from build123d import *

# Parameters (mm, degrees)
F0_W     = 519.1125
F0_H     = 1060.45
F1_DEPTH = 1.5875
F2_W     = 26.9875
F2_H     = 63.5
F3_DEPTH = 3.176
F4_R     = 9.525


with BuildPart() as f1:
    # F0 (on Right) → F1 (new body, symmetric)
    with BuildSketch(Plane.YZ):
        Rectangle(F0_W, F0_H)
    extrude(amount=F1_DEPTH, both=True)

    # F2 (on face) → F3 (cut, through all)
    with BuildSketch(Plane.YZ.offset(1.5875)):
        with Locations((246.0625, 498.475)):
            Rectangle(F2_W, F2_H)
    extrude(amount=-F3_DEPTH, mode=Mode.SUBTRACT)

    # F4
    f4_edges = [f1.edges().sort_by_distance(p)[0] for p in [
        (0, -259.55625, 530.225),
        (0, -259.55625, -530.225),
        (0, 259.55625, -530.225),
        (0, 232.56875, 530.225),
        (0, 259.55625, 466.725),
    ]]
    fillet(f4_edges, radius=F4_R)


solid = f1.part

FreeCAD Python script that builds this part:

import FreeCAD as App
import Part
import Sketcher

V = App.Vector
Q = App.Units.Quantity


def edges_at(feature, points):
    """Names of the edges that pass closest to the given points."""
    edges = feature.Shape.Edges
    near = lambda p: min(range(len(edges)), key=lambda i: edges[i].distToShape(Part.Vertex(*p))[0])
    return sorted({f"Edge{near(p) + 1}" for p in points})


def add_polygon(sketch, points):
    """Adds a closed chain of lines whose ends are joined by coincident constraints."""
    first, n = sketch.GeometryCount, len(points)
    for a, b in zip(points, points[1:] + points[:1]):
        sketch.addGeometry(Part.LineSegment(App.Vector(*a, 0), App.Vector(*b, 0)), False)
    for i in range(n):
        sketch.addConstraint(Sketcher.Constraint("Coincident", first + i, 2, first + (i + 1) % n, 1))

doc = App.newDocument("Part")
body = doc.addObject("PartDesign::Body", "Body")

# Sketch on YZ plane
sketch1 = body.newObject("Sketcher::SketchObject", "Sketch")
sketch1.AttachmentSupport = (doc.getObject("YZ_Plane"), [""])
sketch1.MapMode = "FlatFace"
add_polygon(sketch1, [(-260, 530), (-260, -530), (260, -530), (260, 530)])  # lines 0-3
sketch1.addConstraint([
    Sketcher.Constraint("Vertical", 0),
    Sketcher.Constraint("Horizontal", 1),
    Sketcher.Constraint("Vertical", 2),
    Sketcher.Constraint("Horizontal", 3),
    Sketcher.Constraint("Symmetric", 0, 2, 2, 2, -1, 1),
    Sketcher.Constraint("DistanceY", 0, 2, 0, 1, Q("41.75 in")),
    Sketcher.Constraint("DistanceX", 1, 1, 1, 2, Q("20.4375 in")),
])
pad1 = body.newObject("PartDesign::Pad", "Pad")
pad1.Profile = sketch1
pad1.Length = Q("0.125 in")
pad1.Midplane = True

# Sketch on YZ plane
sketch2 = body.newObject("Sketcher::SketchObject", "Sketch001")
sketch2.AttachmentSupport = (doc.getObject("YZ_Plane"), [""])
sketch2.MapMode = "FlatFace"
sketch2.AttachmentOffset = App.Placement(V(0, 0, 0.0625 * 25.4), App.Rotation())
add_polygon(sketch2, [(233, 530), (233, 467), (260, 467), (260, 530)])  # lines 0-3
sketch2.addConstraint([
    Sketcher.Constraint("Vertical", 0),
    Sketcher.Constraint("Horizontal", 1),
    Sketcher.Constraint("Vertical", 2),
    Sketcher.Constraint("Horizontal", 3),
    Sketcher.Constraint("DistanceY", 0, 2, 0, 1, Q("2.5 in")),
    Sketcher.Constraint("DistanceX", 1, 1, 1, 2, Q("1.0625 in")),
    Sketcher.Constraint("DistanceX", -1, 1, 0, 2, Q("9.15625 in")),
    Sketcher.Constraint("DistanceY", -1, 1, 0, 2, Q("18.375 in")),
])
pocket1 = body.newObject("PartDesign::Pocket", "Pocket")
pocket1.Profile = sketch2
pocket1.Type = "ThroughAll"
doc.recompute()

fillet = body.newObject("PartDesign::Fillet", "Fillet")
fillet.Base = (pocket1, edges_at(pocket1, [
    (0, -259.556, 530.225),
    (0, -259.556, -530.225),
    (0, 259.556, -530.225),
    (0, 232.569, 530.225),
    (0, 259.556, 466.725),
]))
fillet.Radius = Q("0.375 in")

doc.recompute()
